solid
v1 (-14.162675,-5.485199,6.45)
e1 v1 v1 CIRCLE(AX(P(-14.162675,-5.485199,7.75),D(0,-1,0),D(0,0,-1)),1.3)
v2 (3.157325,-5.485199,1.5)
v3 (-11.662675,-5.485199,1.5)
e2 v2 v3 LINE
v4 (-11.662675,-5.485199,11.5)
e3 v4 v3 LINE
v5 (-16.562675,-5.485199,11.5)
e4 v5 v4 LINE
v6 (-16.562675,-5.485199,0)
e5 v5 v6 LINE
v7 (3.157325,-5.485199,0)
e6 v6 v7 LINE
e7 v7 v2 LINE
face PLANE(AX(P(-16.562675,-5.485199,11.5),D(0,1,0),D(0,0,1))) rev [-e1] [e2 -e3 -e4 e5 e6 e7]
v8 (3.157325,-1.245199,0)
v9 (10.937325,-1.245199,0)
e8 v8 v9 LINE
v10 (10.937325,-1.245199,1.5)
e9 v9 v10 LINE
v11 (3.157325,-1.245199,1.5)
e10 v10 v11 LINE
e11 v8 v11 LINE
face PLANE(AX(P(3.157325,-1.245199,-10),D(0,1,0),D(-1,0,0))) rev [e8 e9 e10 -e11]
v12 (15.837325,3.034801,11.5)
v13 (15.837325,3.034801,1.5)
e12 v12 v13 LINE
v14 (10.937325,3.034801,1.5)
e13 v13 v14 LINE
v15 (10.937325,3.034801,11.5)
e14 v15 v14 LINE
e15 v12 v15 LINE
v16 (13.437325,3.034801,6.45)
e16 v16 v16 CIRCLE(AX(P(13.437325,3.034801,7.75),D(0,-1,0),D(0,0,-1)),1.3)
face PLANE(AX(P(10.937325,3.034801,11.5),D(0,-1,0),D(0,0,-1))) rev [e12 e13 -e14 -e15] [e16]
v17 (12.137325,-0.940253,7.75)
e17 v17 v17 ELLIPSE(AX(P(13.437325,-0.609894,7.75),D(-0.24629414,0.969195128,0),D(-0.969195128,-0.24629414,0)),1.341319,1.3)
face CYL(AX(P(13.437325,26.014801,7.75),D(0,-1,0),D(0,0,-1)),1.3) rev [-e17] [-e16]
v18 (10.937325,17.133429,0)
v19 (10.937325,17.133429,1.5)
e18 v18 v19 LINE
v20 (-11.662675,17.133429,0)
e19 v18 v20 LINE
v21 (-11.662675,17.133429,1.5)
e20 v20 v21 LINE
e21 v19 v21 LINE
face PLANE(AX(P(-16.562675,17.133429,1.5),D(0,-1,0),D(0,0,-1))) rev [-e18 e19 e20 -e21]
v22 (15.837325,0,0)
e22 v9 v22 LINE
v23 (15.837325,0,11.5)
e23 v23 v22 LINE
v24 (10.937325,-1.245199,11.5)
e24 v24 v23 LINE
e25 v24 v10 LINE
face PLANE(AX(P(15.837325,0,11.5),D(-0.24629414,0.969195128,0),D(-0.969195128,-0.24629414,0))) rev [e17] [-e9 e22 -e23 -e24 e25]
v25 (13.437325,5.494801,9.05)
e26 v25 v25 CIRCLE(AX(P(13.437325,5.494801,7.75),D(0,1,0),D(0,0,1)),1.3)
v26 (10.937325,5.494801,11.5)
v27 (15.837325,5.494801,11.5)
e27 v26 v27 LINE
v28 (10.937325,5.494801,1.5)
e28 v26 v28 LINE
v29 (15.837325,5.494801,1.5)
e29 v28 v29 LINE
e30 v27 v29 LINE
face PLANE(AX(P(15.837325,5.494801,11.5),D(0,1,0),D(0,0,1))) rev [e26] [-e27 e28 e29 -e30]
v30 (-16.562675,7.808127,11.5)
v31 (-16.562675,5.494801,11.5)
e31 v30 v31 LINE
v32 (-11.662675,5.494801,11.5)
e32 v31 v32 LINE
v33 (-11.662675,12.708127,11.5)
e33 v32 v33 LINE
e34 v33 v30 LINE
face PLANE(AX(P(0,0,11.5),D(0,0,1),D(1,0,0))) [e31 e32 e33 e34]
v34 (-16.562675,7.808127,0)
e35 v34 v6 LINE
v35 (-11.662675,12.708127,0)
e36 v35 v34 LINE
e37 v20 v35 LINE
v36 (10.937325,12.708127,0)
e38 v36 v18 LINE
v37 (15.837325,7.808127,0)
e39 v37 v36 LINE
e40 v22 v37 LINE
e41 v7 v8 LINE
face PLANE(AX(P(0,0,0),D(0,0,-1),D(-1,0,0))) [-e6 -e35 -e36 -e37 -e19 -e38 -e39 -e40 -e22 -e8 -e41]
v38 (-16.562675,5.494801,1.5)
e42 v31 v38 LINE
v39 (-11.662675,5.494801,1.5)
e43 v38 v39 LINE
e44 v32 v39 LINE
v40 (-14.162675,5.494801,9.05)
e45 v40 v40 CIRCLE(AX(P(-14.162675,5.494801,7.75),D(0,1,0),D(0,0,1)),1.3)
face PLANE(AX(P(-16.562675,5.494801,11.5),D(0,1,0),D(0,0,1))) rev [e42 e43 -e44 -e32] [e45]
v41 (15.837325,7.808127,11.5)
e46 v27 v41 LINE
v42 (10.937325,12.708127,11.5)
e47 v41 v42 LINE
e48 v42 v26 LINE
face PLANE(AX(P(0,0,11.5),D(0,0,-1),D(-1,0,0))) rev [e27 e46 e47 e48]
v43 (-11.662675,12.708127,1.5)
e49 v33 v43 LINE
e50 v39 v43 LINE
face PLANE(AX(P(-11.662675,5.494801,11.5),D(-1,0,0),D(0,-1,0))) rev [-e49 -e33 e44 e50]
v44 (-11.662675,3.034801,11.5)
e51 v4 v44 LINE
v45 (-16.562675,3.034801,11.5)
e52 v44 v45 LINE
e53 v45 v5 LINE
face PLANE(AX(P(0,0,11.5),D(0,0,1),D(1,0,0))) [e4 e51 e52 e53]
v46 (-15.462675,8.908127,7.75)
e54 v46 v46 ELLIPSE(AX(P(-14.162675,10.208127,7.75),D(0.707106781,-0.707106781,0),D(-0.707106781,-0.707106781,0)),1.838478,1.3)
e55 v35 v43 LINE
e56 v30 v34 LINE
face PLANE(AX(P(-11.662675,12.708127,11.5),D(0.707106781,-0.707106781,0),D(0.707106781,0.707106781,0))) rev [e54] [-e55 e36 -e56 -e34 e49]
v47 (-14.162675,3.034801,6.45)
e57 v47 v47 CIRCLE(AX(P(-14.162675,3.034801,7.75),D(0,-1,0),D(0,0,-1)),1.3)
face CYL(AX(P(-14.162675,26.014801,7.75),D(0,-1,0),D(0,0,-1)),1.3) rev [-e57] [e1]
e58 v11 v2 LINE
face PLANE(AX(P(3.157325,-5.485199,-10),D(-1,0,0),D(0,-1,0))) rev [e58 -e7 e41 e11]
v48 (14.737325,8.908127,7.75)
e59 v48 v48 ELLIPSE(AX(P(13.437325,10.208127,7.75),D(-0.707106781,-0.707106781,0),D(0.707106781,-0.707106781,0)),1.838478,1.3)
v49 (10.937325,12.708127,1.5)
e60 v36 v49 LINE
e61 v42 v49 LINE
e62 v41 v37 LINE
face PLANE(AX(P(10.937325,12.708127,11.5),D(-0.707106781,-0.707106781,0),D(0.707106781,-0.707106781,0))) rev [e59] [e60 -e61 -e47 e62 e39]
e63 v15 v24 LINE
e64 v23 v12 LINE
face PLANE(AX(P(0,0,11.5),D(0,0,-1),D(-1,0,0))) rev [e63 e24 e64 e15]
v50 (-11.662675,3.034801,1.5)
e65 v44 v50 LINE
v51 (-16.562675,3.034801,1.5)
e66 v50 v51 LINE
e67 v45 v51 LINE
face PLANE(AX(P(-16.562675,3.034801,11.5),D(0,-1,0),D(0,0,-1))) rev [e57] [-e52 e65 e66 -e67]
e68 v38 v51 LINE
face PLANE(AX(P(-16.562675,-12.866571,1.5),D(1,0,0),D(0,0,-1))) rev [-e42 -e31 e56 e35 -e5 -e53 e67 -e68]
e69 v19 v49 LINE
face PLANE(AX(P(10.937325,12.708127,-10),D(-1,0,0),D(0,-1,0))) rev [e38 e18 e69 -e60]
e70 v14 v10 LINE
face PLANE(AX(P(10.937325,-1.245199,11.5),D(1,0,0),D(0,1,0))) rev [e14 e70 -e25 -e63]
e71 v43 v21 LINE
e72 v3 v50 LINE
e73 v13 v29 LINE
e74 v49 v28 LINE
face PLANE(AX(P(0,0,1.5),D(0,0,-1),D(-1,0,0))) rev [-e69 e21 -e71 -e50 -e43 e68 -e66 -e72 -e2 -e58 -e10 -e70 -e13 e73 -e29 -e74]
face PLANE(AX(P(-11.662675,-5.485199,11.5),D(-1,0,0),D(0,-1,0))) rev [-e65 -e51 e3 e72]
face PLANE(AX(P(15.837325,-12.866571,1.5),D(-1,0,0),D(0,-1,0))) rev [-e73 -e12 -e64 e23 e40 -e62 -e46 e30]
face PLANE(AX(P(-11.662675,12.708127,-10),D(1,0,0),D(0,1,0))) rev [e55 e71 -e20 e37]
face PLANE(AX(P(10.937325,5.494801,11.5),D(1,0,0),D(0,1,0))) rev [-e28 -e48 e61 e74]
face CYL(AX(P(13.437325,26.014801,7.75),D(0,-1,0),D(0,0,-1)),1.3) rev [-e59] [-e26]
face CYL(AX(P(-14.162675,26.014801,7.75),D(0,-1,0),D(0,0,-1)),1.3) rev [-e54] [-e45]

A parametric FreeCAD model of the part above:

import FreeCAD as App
import Part
import Sketcher
from FreeCAD import Vector
Q = App.Units.Quantity

doc = App.newDocument("Part")
body = doc.addObject("PartDesign::Body", "Body")

# Sketch on XY plane
sketch1 = body.newObject("Sketcher::SketchObject", "Sketch")
sketch1.AttachmentSupport = (doc.getObject("XY_Plane"), [""])
sketch1.MapMode = "FlatFace"
sketch1.addGeometry(Part.LineSegment(Vector(-17, 17, 0), Vector(-17, -13, 0)), False)
sketch1.addGeometry(Part.LineSegment(Vector(-17, -13, 0), Vector(16, -13, 0)), False)
sketch1.addGeometry(Part.LineSegment(Vector(16, -13, 0), Vector(16, 17, 0)), False)
sketch1.addGeometry(Part.LineSegment(Vector(16, 17, 0), Vector(-17, 17, 0)), False)
sketch1.addConstraint(Sketcher.Constraint("Coincident", 0, 2, 1, 1))
sketch1.addConstraint(Sketcher.Constraint("Coincident", 1, 2, 2, 1))
sketch1.addConstraint(Sketcher.Constraint("Coincident", 2, 2, 3, 1))
sketch1.addConstraint(Sketcher.Constraint("Coincident", 3, 2, 0, 1))
sketch1.addConstraint(Sketcher.Constraint("Vertical", 0))
sketch1.addConstraint(Sketcher.Constraint("Horizontal", 1))
sketch1.addConstraint(Sketcher.Constraint("Vertical", 2))
sketch1.addConstraint(Sketcher.Constraint("Horizontal", 3))
sketch1.addConstraint(Sketcher.Constraint("DistanceY", 0, 2, 0, 1, Q("30 mm")))
sketch1.addConstraint(Sketcher.Constraint("DistanceX", 1, 1, 1, 2, Q("32.4 mm")))
sketch1.addConstraint(Sketcher.Constraint("DistanceY", 0, 2, -1, 1, Q("12.866571 mm")))
sketch1.addConstraint(Sketcher.Constraint("DistanceX", 0, 2, -1, 1, Q("16.562675 mm")))
pad1 = body.newObject("PartDesign::Pad", "Pad")
pad1.Profile = sketch1
pad1.Length = 1.5

# Sketch on XY plane
sketch2 = body.newObject("Sketcher::SketchObject", "Sketch001")
sketch2.AttachmentSupport = (doc.getObject("XY_Plane"), [""])
sketch2.MapMode = "FlatFace"
sketch2.AttachmentOffset = App.Placement(Vector(0, 0, 1.5), App.Rotation())
sketch2.addGeometry(Part.LineSegment(Vector(-16.6, 3, 0), Vector(-16.6, -5.5, 0)), False)
sketch2.addGeometry(Part.LineSegment(Vector(-16.6, -5.5, 0), Vector(-11.7, -5.5, 0)), False)
sketch2.addGeometry(Part.LineSegment(Vector(-11.7, -5.5, 0), Vector(-11.7, 3, 0)), False)
sketch2.addGeometry(Part.LineSegment(Vector(-11.7, 3, 0), Vector(-16.6, 3, 0)), False)
sketch2.addGeometry(Part.LineSegment(Vector(-16.6, 5.5, 0), Vector(-11.7, 5.5, 0)), False)
sketch2.addGeometry(Part.LineSegment(Vector(-11.7, 5.5, 0), Vector(-11.7, 12.7, 0)), False)
sketch2.addGeometry(Part.LineSegment(Vector(-11.7, 12.7, 0), Vector(-16.6, 7.8, 0)), False)
sketch2.addGeometry(Part.LineSegment(Vector(-16.6, 7.8, 0), Vector(-16.6, 5.5, 0)), False)
sketch2.addGeometry(Part.LineSegment(Vector(10.9, 12.7, 0), Vector(10.9, 5.5, 0)), False)
sketch2.addGeometry(Part.LineSegment(Vector(10.9, 5.5, 0), Vector(15.8, 5.5, 0)), False)
sketch2.addGeometry(Part.LineSegment(Vector(15.8, 5.5, 0), Vector(15.8, 7.8, 0)), False)
sketch2.addGeometry(Part.LineSegment(Vector(15.8, 7.8, 0), Vector(10.9, 12.7, 0)), False)
sketch2.addGeometry(Part.LineSegment(Vector(15.8, 3, 0), Vector(10.9, 3, 0)), False)
sketch2.addGeometry(Part.LineSegment(Vector(10.9, 3, 0), Vector(10.9, -1.2, 0)), False)
sketch2.addGeometry(Part.LineSegment(Vector(10.9, -1.2, 0), Vector(15.8, 0, 0)), False)
sketch2.addGeometry(Part.LineSegment(Vector(15.8, 0, 0), Vector(15.8, 3, 0)), False)
sketch2.addConstraint(Sketcher.Constraint("Coincident", 0, 2, 1, 1))
sketch2.addConstraint(Sketcher.Constraint("Coincident", 1, 2, 2, 1))
sketch2.addConstraint(Sketcher.Constraint("Coincident", 2, 2, 3, 1))
sketch2.addConstraint(Sketcher.Constraint("Coincident", 3, 2, 0, 1))
sketch2.addConstraint(Sketcher.Constraint("Coincident", 4, 2, 5, 1))
sketch2.addConstraint(Sketcher.Constraint("Coincident", 5, 2, 6, 1))
sketch2.addConstraint(Sketcher.Constraint("Coincident", 6, 2, 7, 1))
sketch2.addConstraint(Sketcher.Constraint("Coincident", 7, 2, 4, 1))
sketch2.addConstraint(Sketcher.Constraint("Coincident", 8, 2, 9, 1))
sketch2.addConstraint(Sketcher.Constraint("Coincident", 9, 2, 10, 1))
sketch2.addConstraint(Sketcher.Constraint("Coincident", 10, 2, 11, 1))
sketch2.addConstraint(Sketcher.Constraint("Coincident", 11, 2, 8, 1))
sketch2.addConstraint(Sketcher.Constraint("Coincident", 12, 2, 13, 1))
sketch2.addConstraint(Sketcher.Constraint("Coincident", 13, 2, 14, 1))
sketch2.addConstraint(Sketcher.Constraint("Coincident", 14, 2, 15, 1))
sketch2.addConstraint(Sketcher.Constraint("Coincident", 15, 2, 12, 1))
sketch2.addConstraint(Sketcher.Constraint("Vertical", 0))
sketch2.addConstraint(Sketcher.Constraint("Horizontal", 1))
sketch2.addConstraint(Sketcher.Constraint("Vertical", 2))
sketch2.addConstraint(Sketcher.Constraint("Horizontal", 3))
sketch2.addConstraint(Sketcher.Constraint("Horizontal", 4))
sketch2.addConstraint(Sketcher.Constraint("Vertical", 5))
sketch2.addConstraint(Sketcher.Constraint("Vertical", 7))
sketch2.addConstraint(Sketcher.Constraint("Vertical", 8))
sketch2.addConstraint(Sketcher.Constraint("Horizontal", 9))
sketch2.addConstraint(Sketcher.Constraint("Vertical", 10))
sketch2.addConstraint(Sketcher.Constraint("Horizontal", 12))
sketch2.addConstraint(Sketcher.Constraint("Vertical", 13))
sketch2.addConstraint(Sketcher.Constraint("Vertical", 15))
sketch2.addConstraint(Sketcher.Constraint("PointOnObject", 14, 2, -1))
sketch2.addConstraint(Sketcher.Constraint("Perpendicular", 6, 11))
sketch2.addConstraint(Sketcher.Constraint("Horizontal", 7, 2, 8, 2))
sketch2.addConstraint(Sketcher.Constraint("Horizontal", 6, 2, 10, 2))
sketch2.addConstraint(Sketcher.Constraint("Horizontal", 5, 2, 11, 2))
sketch2.addConstraint(Sketcher.Constraint("Horizontal", 3, 2, 12, 2))
sketch2.addConstraint(Sketcher.Constraint("Vertical", 2, 2, 4, 2))
sketch2.addConstraint(Sketcher.Constraint("Vertical", 3, 2, 6, 2))
sketch2.addConstraint(Sketcher.Constraint("Vertical", 11, 2, 12, 2))
sketch2.addConstraint(Sketcher.Constraint("Vertical", 10, 2, 14, 2))
sketch2.addConstraint(Sketcher.Constraint("Equal", 4, 9))
sketch2.addConstraint(Sketcher.Constraint("DistanceX", 1, 1, 1, 2, Q("4.9 mm")))
sketch2.addConstraint(Sketcher.Constraint("DistanceY", 0, 2, 0, 1, Q("8.52 mm")))
sketch2.addConstraint(Sketcher.Constraint("DistanceY", 13, 2, 13, 1, Q("4.28 mm")))
sketch2.addConstraint(Sketcher.Constraint("DistanceX", 4, 2, 8, 2, Q("22.6 mm")))
sketch2.addConstraint(Sketcher.Constraint("DistanceY", 2, 2, 4, 2, Q("2.46 mm")))
sketch2.addConstraint(Sketcher.Constraint("DistanceY", 15, 1, 15, 2, Q("3.034801 mm")))
sketch2.addConstraint(Sketcher.Constraint("DistanceY", 5, 1, 5, 2, Q("7.213326 mm")))
sketch2.addConstraint(Sketcher.Constraint("DistanceX", 0, 2, -1, 1, Q("16.562675 mm")))
pad2 = body.newObject("PartDesign::Pad", "Pad001")
pad2.Profile = sketch2
pad2.Length = 10

# Sketch on XY plane
sketch3 = body.newObject("Sketcher::SketchObject", "Sketch002")
sketch3.AttachmentSupport = (doc.getObject("XY_Plane"), [""])
sketch3.MapMode = "FlatFace"
sketch3.AttachmentOffset = App.Placement(Vector(0, 0, 1.5), App.Rotation())
sketch3.addGeometry(Part.LineSegment(Vector(-16.6, 7.8, 0), Vector(-11.7, 12.7, 0)), False)
sketch3.addGeometry(Part.LineSegment(Vector(-11.7, 12.7, 0), Vector(-11.7, 17.1, 0)), False)
sketch3.addGeometry(Part.LineSegment(Vector(-11.7, 17.1, 0), Vector(-16.6, 17.1, 0)), False)
sketch3.addGeometry(Part.LineSegment(Vector(-16.6, 17.1, 0), Vector(-16.6, 7.8, 0)), False)
sketch3.addGeometry(Part.LineSegment(Vector(10.9, 12.7, 0), Vector(15.8, 7.8, 0)), False)
sketch3.addGeometry(Part.LineSegment(Vector(15.8, 7.8, 0), Vector(15.8, 17.1, 0)), False)
sketch3.addGeometry(Part.LineSegment(Vector(15.8, 17.1, 0), Vector(10.9, 17.1, 0)), False)
sketch3.addGeometry(Part.LineSegment(Vector(10.9, 17.1, 0), Vector(10.9, 12.7, 0)), False)
sketch3.addGeometry(Part.LineSegment(Vector(-16.6, -5.5, 0), Vector(-16.6, -12.9, 0)), False)
sketch3.addGeometry(Part.LineSegment(Vector(-16.6, -12.9, 0), Vector(15.8, -12.9, 0)), False)
sketch3.addGeometry(Part.LineSegment(Vector(15.8, -12.9, 0), Vector(15.8, 0, 0)), False)
sketch3.addGeometry(Part.LineSegment(Vector(15.8, 0, 0), Vector(10.9, -1.2, 0)), False)
sketch3.addGeometry(Part.LineSegment(Vector(10.9, -1.2, 0), Vector(3.2, -1.2, 0)), False)
sketch3.addGeometry(Part.LineSegment(Vector(3.2, -1.2, 0), Vector(3.2, -5.5, 0)), False)
sketch3.addGeometry(Part.LineSegment(Vector(3.2, -5.5, 0), Vector(-16.6, -5.5, 0)), False)
sketch3.addConstraint(Sketcher.Constraint("Coincident", 0, 2, 1, 1))
sketch3.addConstraint(Sketcher.Constraint("Coincident", 1, 2, 2, 1))
sketch3.addConstraint(Sketcher.Constraint("Coincident", 2, 2, 3, 1))
sketch3.addConstraint(Sketcher.Constraint("Coincident", 3, 2, 0, 1))
sketch3.addConstraint(Sketcher.Constraint("Coincident", 4, 2, 5, 1))
sketch3.addConstraint(Sketcher.Constraint("Coincident", 5, 2, 6, 1))
sketch3.addConstraint(Sketcher.Constraint("Coincident", 6, 2, 7, 1))
sketch3.addConstraint(Sketcher.Constraint("Coincident", 7, 2, 4, 1))
sketch3.addConstraint(Sketcher.Constraint("Coincident", 8, 2, 9, 1))
sketch3.addConstraint(Sketcher.Constraint("Coincident", 9, 2, 10, 1))
sketch3.addConstraint(Sketcher.Constraint("Coincident", 10, 2, 11, 1))
sketch3.addConstraint(Sketcher.Constraint("Coincident", 11, 2, 12, 1))
sketch3.addConstraint(Sketcher.Constraint("Coincident", 12, 2, 13, 1))
sketch3.addConstraint(Sketcher.Constraint("Coincident", 13, 2, 14, 1))
sketch3.addConstraint(Sketcher.Constraint("Coincident", 14, 2, 8, 1))
sketch3.addConstraint(Sketcher.Constraint("Vertical", 1))
sketch3.addConstraint(Sketcher.Constraint("Horizontal", 2))
sketch3.addConstraint(Sketcher.Constraint("Vertical", 3))
sketch3.addConstraint(Sketcher.Constraint("Vertical", 5))
sketch3.addConstraint(Sketcher.Constraint("Horizontal", 6))
sketch3.addConstraint(Sketcher.Constraint("Vertical", 7))
sketch3.addConstraint(Sketcher.Constraint("Vertical", 8))
sketch3.addConstraint(Sketcher.Constraint("Horizontal", 9))
sketch3.addConstraint(Sketcher.Constraint("Vertical", 10))
sketch3.addConstraint(Sketcher.Constraint("Horizontal", 12))
sketch3.addConstraint(Sketcher.Constraint("Vertical", 13))
sketch3.addConstraint(Sketcher.Constraint("Horizontal", 14))
sketch3.addConstraint(Sketcher.Constraint("PointOnObject", 10, 2, -1))
sketch3.addConstraint(Sketcher.Constraint("Perpendicular", 0, 4))
sketch3.addConstraint(Sketcher.Constraint("Horizontal", 3, 2, 4, 2))
sketch3.addConstraint(Sketcher.Constraint("Horizontal", 2, 2, 5, 2))
sketch3.addConstraint(Sketcher.Constraint("Horizontal", 0, 2, 7, 2))
sketch3.addConstraint(Sketcher.Constraint("Vertical", 3, 2, 8, 2))
sketch3.addConstraint(Sketcher.Constraint("Vertical", 5, 2, 9, 2))
sketch3.addConstraint(Sketcher.Constraint("Vertical", 7, 2, 11, 2))
sketch3.addConstraint(Sketcher.Constraint("Equal", 2, 6))
sketch3.addConstraint(Sketcher.Constraint("DistanceX", 2, 2, 2, 1, Q("4.9 mm")))
sketch3.addConstraint(Sketcher.Constraint("DistanceX", 9, 1, 9, 2, Q("32.4 mm")))
sketch3.addConstraint(Sketcher.Constraint("DistanceY", 8, 2, 2, 2, Q("30 mm")))
sketch3.addConstraint(Sketcher.Constraint("DistanceX", 12, 2, 12, 1, Q("7.78 mm")))
sketch3.addConstraint(Sketcher.Constraint("DistanceY", 13, 2, 13, 1, Q("4.24 mm")))
sketch3.addConstraint(Sketcher.Constraint("DistanceY", 1, 1, 1, 2, Q("4.425302 mm")))
sketch3.addConstraint(Sketcher.Constraint("DistanceY", 8, 2, 8, 1, Q("7.381372 mm")))
sketch3.addConstraint(Sketcher.Constraint("DistanceY", 10, 1, 10, 2, Q("12.866571 mm")))
sketch3.addConstraint(Sketcher.Constraint("DistanceX", 0, 2, -1, 1, Q("11.662675 mm")))
pocket1 = body.newObject("PartDesign::Pocket", "Pocket")
pocket1.Profile = sketch3
pocket1.Length = 11.5

# Sketch on XZ plane
sketch4 = body.newObject("Sketcher::SketchObject", "Sketch003")
sketch4.AttachmentSupport = (doc.getObject("XZ_Plane"), [""])
sketch4.MapMode = "FlatFace"
sketch4.AttachmentOffset = App.Placement(Vector(0, 0, 5.485199), App.Rotation())
sketch4.addGeometry(Part.Circle(Vector(-14.2, 7.8, 0), Vector(0, 0, 1), 1.3), False)
sketch4.addGeometry(Part.Circle(Vector(13.4, 7.8, 0), Vector(0, 0, 1), 1.3), False)
sketch4.addConstraint(Sketcher.Constraint("Equal", 0, 1))
sketch4.addConstraint(Sketcher.Constraint("Horizontal", 0, 3, 1, 3))
sketch4.addConstraint(Sketcher.Constraint("Diameter", 0, Q("2.6 mm")))
sketch4.addConstraint(Sketcher.Constraint("DistanceX", 0, 3, 1, 3, Q("27.6 mm")))
sketch4.addConstraint(Sketcher.Constraint("DistanceY", -1, 1, 0, 3, Q("7.75 mm")))
sketch4.addConstraint(Sketcher.Constraint("DistanceX", 0, 3, -1, 1, Q("14.162675 mm")))
pocket2 = body.newObject("PartDesign::Pocket", "Pocket001")
pocket2.Profile = sketch4
pocket2.Length = 31.5

doc.recompute()
